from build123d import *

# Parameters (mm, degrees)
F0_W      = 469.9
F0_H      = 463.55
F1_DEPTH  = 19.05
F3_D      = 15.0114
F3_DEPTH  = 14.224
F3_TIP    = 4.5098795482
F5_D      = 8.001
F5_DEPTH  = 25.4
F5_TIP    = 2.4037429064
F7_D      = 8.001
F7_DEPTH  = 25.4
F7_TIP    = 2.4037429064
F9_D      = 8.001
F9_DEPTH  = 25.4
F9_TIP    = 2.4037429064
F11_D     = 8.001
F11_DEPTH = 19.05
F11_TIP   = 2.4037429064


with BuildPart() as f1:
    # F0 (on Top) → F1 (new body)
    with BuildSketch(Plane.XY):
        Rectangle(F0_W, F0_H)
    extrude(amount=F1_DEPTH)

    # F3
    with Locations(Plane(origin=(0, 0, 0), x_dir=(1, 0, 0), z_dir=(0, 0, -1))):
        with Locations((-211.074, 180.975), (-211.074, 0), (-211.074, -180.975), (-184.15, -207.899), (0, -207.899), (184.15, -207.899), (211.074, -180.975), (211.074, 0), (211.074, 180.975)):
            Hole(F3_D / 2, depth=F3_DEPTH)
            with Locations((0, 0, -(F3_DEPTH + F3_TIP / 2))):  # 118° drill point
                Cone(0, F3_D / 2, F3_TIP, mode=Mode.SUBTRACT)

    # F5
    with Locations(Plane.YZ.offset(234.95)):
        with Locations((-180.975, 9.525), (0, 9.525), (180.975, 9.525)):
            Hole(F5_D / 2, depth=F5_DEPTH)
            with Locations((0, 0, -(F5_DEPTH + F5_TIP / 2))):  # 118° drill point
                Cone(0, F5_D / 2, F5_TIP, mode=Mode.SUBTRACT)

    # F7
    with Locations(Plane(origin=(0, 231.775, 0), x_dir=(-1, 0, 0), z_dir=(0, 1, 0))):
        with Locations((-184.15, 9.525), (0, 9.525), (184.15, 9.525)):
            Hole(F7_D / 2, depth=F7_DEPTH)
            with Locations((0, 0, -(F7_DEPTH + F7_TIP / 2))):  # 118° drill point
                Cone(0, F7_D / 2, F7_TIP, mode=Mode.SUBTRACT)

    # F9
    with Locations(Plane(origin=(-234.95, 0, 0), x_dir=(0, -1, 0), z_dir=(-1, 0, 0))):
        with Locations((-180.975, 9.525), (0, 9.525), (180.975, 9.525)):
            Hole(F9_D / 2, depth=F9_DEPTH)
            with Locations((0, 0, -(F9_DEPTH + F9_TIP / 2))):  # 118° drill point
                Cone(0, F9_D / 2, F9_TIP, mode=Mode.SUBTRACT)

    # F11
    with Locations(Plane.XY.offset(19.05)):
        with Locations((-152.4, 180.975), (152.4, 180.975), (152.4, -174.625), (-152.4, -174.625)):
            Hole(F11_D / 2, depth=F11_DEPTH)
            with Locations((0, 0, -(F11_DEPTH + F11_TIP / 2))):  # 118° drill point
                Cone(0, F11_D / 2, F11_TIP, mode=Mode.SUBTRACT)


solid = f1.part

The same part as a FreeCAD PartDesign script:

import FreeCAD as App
import Part
import Sketcher

V = App.Vector
Q = App.Units.Quantity


def add_polygon(sketch, points):
    """Adds a closed chain of lines whose ends are joined by coincident constraints."""
    first, n = sketch.GeometryCount, len(points)
    for a, b in zip(points, points[1:] + points[:1]):
        sketch.addGeometry(Part.LineSegment(App.Vector(*a, 0), App.Vector(*b, 0)), False)
    for i in range(n):
        sketch.addConstraint(Sketcher.Constraint("Coincident", first + i, 2, first + (i + 1) % n, 1))

doc = App.newDocument("Part")
params = doc.addObject("Spreadsheet::Sheet", "Params")
for row, (alias, value) in enumerate([
    ("sketch1_width", "18.5 in"),
    ("sketch1_height", "18.25 in"),
    ("pad1_length", "0.75 in"),
    ("sketch2_diameter", "0.591 in"),
    ("hole_diameter", "0.591 in"),
    ("hole_depth", "0.56 in"),
    ("sketch3_diameter", "0.315 in"),
    ("hole2_diameter", "0.315 in"),
    ("hole2_depth", "1 in"),
    ("sketch4_diameter", "0.315 in"),
    ("hole3_diameter", "0.315 in"),
    ("hole3_depth", "1 in"),
    ("sketch5_diameter", "0.315 in"),
    ("hole4_diameter", "0.315 in"),
    ("hole4_depth", "1 in"),
    ("sketch6_diameter", "0.315 in"),
    ("hole5_diameter", "0.315 in"),
    ("hole5_depth", "0.75 in"),
], start=1):
    params.set(f"A{row}", alias)
    params.set(f"B{row}", "=" + value)
    params.setAlias(f"B{row}", alias)

body = doc.addObject("PartDesign::Body", "Body")

# Sketch on XY plane
sketch1 = doc.addObject("Sketcher::SketchObject", "Sketch")
body.addObject(sketch1)
sketch1.AttachmentSupport = (doc.XY_Plane, [""])
sketch1.MapMode = "FlatFace"
add_polygon(sketch1, [(-234.95, 231.775), (-234.95, -231.775), (234.95, -231.775), (234.95, 231.775)])  # lines 0-3
sketch1.addConstraint([
    Sketcher.Constraint("Vertical", 0),
    Sketcher.Constraint("Horizontal", 1),
    Sketcher.Constraint("Vertical", 2),
    Sketcher.Constraint("Horizontal", 3),
    Sketcher.Constraint("Symmetric", 0, 2, 2, 2, -1, 1),
    Sketcher.Constraint("DistanceX", 1, 1, 1, 2, Q("18.5 in")),
    Sketcher.Constraint("DistanceY", 0, 2, 0, 1, Q("18.25 in")),
])
sketch1.setExpression("Constraints[9]", "Params.sketch1_width")
sketch1.setExpression("Constraints[10]", "Params.sketch1_height")
pad1 = doc.addObject("PartDesign::Pad", "Pad")
body.addObject(pad1)
pad1.Profile = sketch1
pad1.setExpression("Length", "Params.pad1_length")

# Sketch on XY plane
sketch2 = doc.addObject("Sketcher::SketchObject", "Sketch001")
body.addObject(sketch2)
sketch2.AttachmentSupport = (doc.XY_Plane, [""])
sketch2.MapMode = "FlatFace"
sketch2.addGeometry([
    Part.Circle(V(-211.074, -180.975, 0), V(0, 0, 1), 7.5057),  # 0
    Part.Circle(V(-211.074, 0, 0), V(0, 0, 1), 7.5057),  # 1
    Part.Circle(V(-211.074, 180.975, 0), V(0, 0, 1), 7.5057),  # 2
    Part.Circle(V(-184.15, 207.899, 0), V(0, 0, 1), 7.5057),  # 3
    Part.Circle(V(0, 207.899, 0), V(0, 0, 1), 7.5057),  # 4
    Part.Circle(V(184.15, 207.899, 0), V(0, 0, 1), 7.5057),  # 5
    Part.Circle(V(211.074, 180.975, 0), V(0, 0, 1), 7.5057),  # 6
    Part.Circle(V(211.074, 0, 0), V(0, 0, 1), 7.5057),  # 7
    Part.Circle(V(211.074, -180.975, 0), V(0, 0, 1), 7.5057),  # 8
], False)
sketch2.addConstraint([
    Sketcher.Constraint("Equal", 0, 1),
    Sketcher.Constraint("Equal", 1, 2),
    Sketcher.Constraint("Equal", 2, 3),
    Sketcher.Constraint("Equal", 3, 4),
    Sketcher.Constraint("Equal", 4, 5),
    Sketcher.Constraint("Equal", 5, 6),
    Sketcher.Constraint("Equal", 6, 7),
    Sketcher.Constraint("Equal", 7, 8),
    Sketcher.Constraint("Symmetric", 0, 3, 6, 3, -1, 1),
    Sketcher.Constraint("Symmetric", 1, 3, 7, 3, -1, 1),
    Sketcher.Constraint("Symmetric", 2, 3, 8, 3, -1, 1),
    Sketcher.Constraint("Symmetric", 3, 3, 5, 3, -2),
    Sketcher.Constraint("Symmetric", 2, 3, 6, 3, -2),
    Sketcher.Constraint("PointOnObject", 1, 3, -1),
    Sketcher.Constraint("PointOnObject", 4, 3, -2),
    Sketcher.Constraint("Horizontal", 3, 3, 4, 3),
    Sketcher.Constraint("Vertical", 0, 3, 1, 3),
    Sketcher.Constraint("Diameter", 0, Q("0.591 in")),
    Sketcher.Constraint("DistanceX", 3, 3, 5, 3, Q("14.5 in")),
    Sketcher.Constraint("DistanceX", 0, 3, -1, 1, Q("8.31 in")),
    Sketcher.Constraint("DistanceY", 0, 3, 2, 3, Q("14.25 in")),
    Sketcher.Constraint("DistanceY", 2, 3, 3, 3, Q("1.06 in")),
])
sketch2.setExpression("Constraints[17]", "Params.sketch2_diameter")
doc.recompute()
hole = doc.addObject("PartDesign::Hole", "Hole")
body.addObject(hole)
hole.Profile = sketch2
hole.ThreadType = "None"
hole.setExpression("Diameter", "Params.hole_diameter")
hole.DepthType = "Dimension"
hole.setExpression("Depth", "Params.hole_depth")
hole.DrillPoint = "Angled"
hole.DrillPointAngle = 118
hole.Reversed = True

# Sketch on YZ plane
sketch3 = doc.addObject("Sketcher::SketchObject", "Sketch002")
body.addObject(sketch3)
sketch3.AttachmentSupport = (doc.YZ_Plane, [""])
sketch3.MapMode = "FlatFace"
sketch3.AttachmentOffset = App.Placement(V(0, 0, 9.25 * 25.4), App.Rotation())
sketch3.addGeometry([
    Part.Circle(V(-180.975, 9.525, 0), V(0, 0, 1), 4.0005),
    Part.Circle(V(0, 9.525, 0), V(0, 0, 1), 4.0005),
    Part.Circle(V(180.975, 9.525, 0), V(0, 0, 1), 4.0005),
], False)
sketch3.addConstraint([
    Sketcher.Constraint("Equal", 0, 1),
    Sketcher.Constraint("Equal", 1, 2),
    Sketcher.Constraint("Symmetric", 0, 3, 2, 3, -2),
    Sketcher.Constraint("PointOnObject", 1, 3, -2),
    Sketcher.Constraint("Horizontal", 0, 3, 1, 3),
    Sketcher.Constraint("Diameter", 0, Q("0.315 in")),
    Sketcher.Constraint("DistanceX", 0, 3, 2, 3, Q("14.25 in")),
    Sketcher.Constraint("DistanceY", -1, 1, 0, 3, Q("0.375 in")),
])
sketch3.setExpression("Constraints[5]", "Params.sketch3_diameter")
doc.recompute()
hole2 = doc.addObject("PartDesign::Hole", "Hole001")
body.addObject(hole2)
hole2.Profile = sketch3
hole2.ThreadType = "None"
hole2.setExpression("Diameter", "Params.hole2_diameter")
hole2.DepthType = "Dimension"
hole2.setExpression("Depth", "Params.hole2_depth")
hole2.DrillPoint = "Angled"
hole2.DrillPointAngle = 118

# Sketch on XZ plane
sketch4 = doc.addObject("Sketcher::SketchObject", "Sketch003")
body.addObject(sketch4)
sketch4.AttachmentSupport = (doc.XZ_Plane, [""])
sketch4.MapMode = "FlatFace"
sketch4.AttachmentOffset = App.Placement(V(0, 0, -9.125 * 25.4), App.Rotation())
sketch4.addGeometry([
    Part.Circle(V(184.15, 9.525, 0), V(0, 0, 1), 4.0005),
    Part.Circle(V(0, 9.525, 0), V(0, 0, 1), 4.0005),
    Part.Circle(V(-184.15, 9.525, 0), V(0, 0, 1), 4.0005),
], False)
sketch4.addConstraint([
    Sketcher.Constraint("Equal", 0, 1),
    Sketcher.Constraint("Equal", 1, 2),
    Sketcher.Constraint("Symmetric", 0, 3, 2, 3, -2),
    Sketcher.Constraint("PointOnObject", 1, 3, -2),
    Sketcher.Constraint("Horizontal", 0, 3, 1, 3),
    Sketcher.Constraint("Diameter", 0, Q("0.315 in")),
    Sketcher.Constraint("DistanceX", 2, 3, 0, 3, Q("14.5 in")),
    Sketcher.Constraint("DistanceY", -1, 1, 0, 3, Q("0.375 in")),
])
sketch4.setExpression("Constraints[5]", "Params.sketch4_diameter")
doc.recompute()
hole3 = doc.addObject("PartDesign::Hole", "Hole002")
body.addObject(hole3)
hole3.Profile = sketch4
hole3.ThreadType = "None"
hole3.setExpression("Diameter", "Params.hole3_diameter")
hole3.DepthType = "Dimension"
hole3.setExpression("Depth", "Params.hole3_depth")
hole3.DrillPoint = "Angled"
hole3.DrillPointAngle = 118
hole3.Reversed = True

# Sketch on YZ plane
sketch5 = doc.addObject("Sketcher::SketchObject", "Sketch004")
body.addObject(sketch5)
sketch5.AttachmentSupport = (doc.YZ_Plane, [""])
sketch5.MapMode = "FlatFace"
sketch5.AttachmentOffset = App.Placement(V(0, 0, -9.25 * 25.4), App.Rotation())
sketch5.addGeometry([
    Part.Circle(V(180.975, 9.525, 0), V(0, 0, 1), 4.0005),
    Part.Circle(V(0, 9.525, 0), V(0, 0, 1), 4.0005),
    Part.Circle(V(-180.975, 9.525, 0), V(0, 0, 1), 4.0005),
], False)
sketch5.addConstraint([
    Sketcher.Constraint("Equal", 0, 1),
    Sketcher.Constraint("Equal", 1, 2),
    Sketcher.Constraint("Symmetric", 0, 3, 2, 3, -2),
    Sketcher.Constraint("PointOnObject", 1, 3, -2),
    Sketcher.Constraint("Horizontal", 0, 3, 1, 3),
    Sketcher.Constraint("Diameter", 0, Q("0.315 in")),
    Sketcher.Constraint("DistanceX", 2, 3, 0, 3, Q("14.25 in")),
    Sketcher.Constraint("DistanceY", -1, 1, 0, 3, Q("0.375 in")),
])
sketch5.setExpression("Constraints[5]", "Params.sketch5_diameter")
doc.recompute()
hole4 = doc.addObject("PartDesign::Hole", "Hole003")
body.addObject(hole4)
hole4.Profile = sketch5
hole4.ThreadType = "None"
hole4.setExpression("Diameter", "Params.hole4_diameter")
hole4.DepthType = "Dimension"
hole4.setExpression("Depth", "Params.hole4_depth")
hole4.DrillPoint = "Angled"
hole4.DrillPointAngle = 118
hole4.Reversed = True

# Sketch on XY plane
sketch6 = doc.addObject("Sketcher::SketchObject", "Sketch005")
body.addObject(sketch6)
sketch6.AttachmentSupport = (doc.XY_Plane, [""])
sketch6.MapMode = "FlatFace"
sketch6.AttachmentOffset = App.Placement(V(0, 0, 0.75 * 25.4), App.Rotation())
sketch6.addGeometry([
    Part.Circle(V(-152.4, 180.975, 0), V(0, 0, 1), 4.0005),
    Part.Circle(V(152.4, 180.975, 0), V(0, 0, 1), 4.0005),
    Part.Circle(V(152.4, -174.625, 0), V(0, 0, 1), 4.0005),
    Part.Circle(V(-152.4, -174.625, 0), V(0, 0, 1), 4.0005),
], False)
sketch6.addConstraint([
    Sketcher.Constraint("Equal", 0, 1),
    Sketcher.Constraint("Equal", 1, 2),
    Sketcher.Constraint("Equal", 2, 3),
    Sketcher.Constraint("Symmetric", 0, 3, 1, 3, -2),
    Sketcher.Constraint("Symmetric", 2, 3, 3, 3, -2),
    Sketcher.Constraint("Vertical", 1, 3, 2, 3),
    Sketcher.Constraint("Diameter", 0, Q("0.315 in")),
    Sketcher.Constraint("DistanceX", 0, 3, -1, 1, Q("6 in")),
    Sketcher.Constraint("DistanceY", 2, 3, 1, 3, Q("14 in")),
    Sketcher.Constraint("DistanceY", -1, 1, 0, 3, Q("7.125 in")),
])
sketch6.setExpression("Constraints[6]", "Params.sketch6_diameter")
doc.recompute()
hole5 = doc.addObject("PartDesign::Hole", "Hole004")
body.addObject(hole5)
hole5.Profile = sketch6
hole5.ThreadType = "None"
hole5.setExpression("Diameter", "Params.hole5_diameter")
hole5.DepthType = "Dimension"
hole5.setExpression("Depth", "Params.hole5_depth")
hole5.DrillPoint = "Angled"
hole5.DrillPointAngle = 118

doc.recompute()
